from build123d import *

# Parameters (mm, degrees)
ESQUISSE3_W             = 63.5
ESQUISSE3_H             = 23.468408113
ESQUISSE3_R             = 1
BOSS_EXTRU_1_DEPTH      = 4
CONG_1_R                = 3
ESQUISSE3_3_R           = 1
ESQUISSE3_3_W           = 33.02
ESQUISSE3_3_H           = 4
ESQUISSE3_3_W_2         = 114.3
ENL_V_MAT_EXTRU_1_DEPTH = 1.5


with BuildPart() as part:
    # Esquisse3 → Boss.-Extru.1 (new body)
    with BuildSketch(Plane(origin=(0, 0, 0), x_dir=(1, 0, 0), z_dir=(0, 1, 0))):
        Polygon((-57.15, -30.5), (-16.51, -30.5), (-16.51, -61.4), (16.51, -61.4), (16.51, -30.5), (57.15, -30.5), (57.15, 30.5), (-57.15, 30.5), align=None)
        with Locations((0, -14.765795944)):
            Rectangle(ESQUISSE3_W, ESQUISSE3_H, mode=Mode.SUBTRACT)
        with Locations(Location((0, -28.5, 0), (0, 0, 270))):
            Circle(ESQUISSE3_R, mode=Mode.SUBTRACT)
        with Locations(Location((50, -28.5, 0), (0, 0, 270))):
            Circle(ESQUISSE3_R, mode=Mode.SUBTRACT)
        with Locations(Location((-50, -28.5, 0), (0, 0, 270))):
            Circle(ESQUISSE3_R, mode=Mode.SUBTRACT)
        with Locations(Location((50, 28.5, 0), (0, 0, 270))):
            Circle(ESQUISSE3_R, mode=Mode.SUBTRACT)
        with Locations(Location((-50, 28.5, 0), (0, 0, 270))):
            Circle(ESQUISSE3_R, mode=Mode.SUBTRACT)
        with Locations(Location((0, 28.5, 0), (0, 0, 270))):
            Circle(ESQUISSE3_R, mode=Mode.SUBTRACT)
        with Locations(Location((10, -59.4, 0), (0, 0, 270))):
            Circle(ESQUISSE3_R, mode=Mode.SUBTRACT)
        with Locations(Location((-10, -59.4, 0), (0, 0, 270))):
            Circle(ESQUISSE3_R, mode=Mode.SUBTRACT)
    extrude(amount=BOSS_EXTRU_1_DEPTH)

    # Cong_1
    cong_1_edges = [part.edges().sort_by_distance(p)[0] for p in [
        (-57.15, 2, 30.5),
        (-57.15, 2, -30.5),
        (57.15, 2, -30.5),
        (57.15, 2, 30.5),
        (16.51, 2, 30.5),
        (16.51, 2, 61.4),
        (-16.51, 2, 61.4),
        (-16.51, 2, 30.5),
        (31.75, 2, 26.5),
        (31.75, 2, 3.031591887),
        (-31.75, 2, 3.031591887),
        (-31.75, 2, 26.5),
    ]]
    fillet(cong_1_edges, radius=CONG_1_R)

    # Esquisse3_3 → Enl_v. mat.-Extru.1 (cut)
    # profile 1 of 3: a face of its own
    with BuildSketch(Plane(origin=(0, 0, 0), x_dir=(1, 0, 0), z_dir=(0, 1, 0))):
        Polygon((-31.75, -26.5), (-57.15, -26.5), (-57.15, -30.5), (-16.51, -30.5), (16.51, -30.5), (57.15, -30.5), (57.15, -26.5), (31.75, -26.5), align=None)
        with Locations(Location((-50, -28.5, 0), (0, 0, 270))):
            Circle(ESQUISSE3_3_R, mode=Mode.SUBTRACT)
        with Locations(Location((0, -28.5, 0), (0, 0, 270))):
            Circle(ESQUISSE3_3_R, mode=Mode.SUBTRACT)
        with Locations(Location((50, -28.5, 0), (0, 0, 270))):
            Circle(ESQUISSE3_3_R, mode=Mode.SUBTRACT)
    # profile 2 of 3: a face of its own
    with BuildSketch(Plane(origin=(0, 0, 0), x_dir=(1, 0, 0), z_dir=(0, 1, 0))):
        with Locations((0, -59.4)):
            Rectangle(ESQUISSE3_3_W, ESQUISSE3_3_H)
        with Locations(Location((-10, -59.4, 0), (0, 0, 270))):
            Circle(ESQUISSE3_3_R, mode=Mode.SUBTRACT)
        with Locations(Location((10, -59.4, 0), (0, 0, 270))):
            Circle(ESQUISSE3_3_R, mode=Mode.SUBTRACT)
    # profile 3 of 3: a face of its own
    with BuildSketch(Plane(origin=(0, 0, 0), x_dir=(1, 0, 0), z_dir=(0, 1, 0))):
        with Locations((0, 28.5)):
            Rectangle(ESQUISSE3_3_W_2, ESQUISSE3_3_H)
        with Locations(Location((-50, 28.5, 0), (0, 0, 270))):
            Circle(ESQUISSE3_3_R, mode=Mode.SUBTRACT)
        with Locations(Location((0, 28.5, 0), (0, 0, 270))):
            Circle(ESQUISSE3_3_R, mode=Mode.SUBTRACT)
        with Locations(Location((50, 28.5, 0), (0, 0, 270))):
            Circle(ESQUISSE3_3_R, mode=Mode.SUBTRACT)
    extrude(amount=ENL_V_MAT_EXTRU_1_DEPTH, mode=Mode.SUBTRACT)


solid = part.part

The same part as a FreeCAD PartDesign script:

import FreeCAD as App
import Part
import Sketcher

V = App.Vector
Q = App.Units.Quantity


def edges_at(feature, points):
    """Names of the edges that pass closest to the given points."""
    edges = feature.Shape.Edges
    near = lambda p: min(range(len(edges)), key=lambda i: edges[i].distToShape(Part.Vertex(*p))[0])
    return sorted({f"Edge{near(p) + 1}" for p in points})

doc = App.newDocument("Part")
params = doc.addObject("Spreadsheet::Sheet", "Params")
for row, (alias, value) in enumerate([
    ("sketch1_diameter", "2 mm"),
    ("sketch1_height", "61 mm"),
    ("sketch1_width", "114.3 mm"),
    ("sketch1_width2", "63.5 mm"),
    ("sketch1_height2", "30.9 mm"),
    ("pad1_length", "4 mm"),
    ("fillet_radius", "3 mm"),
    ("sketch2_diameter", "2 mm"),
    ("sketch2_height", "4 mm"),
    ("sketch2_width", "114.3 mm"),
    ("sketch2_width2", "33.02 mm"),
    ("pocket1_length", "1.5 mm"),
], start=1):
    params.set(f"A{row}", alias)
    params.set(f"B{row}", "=" + value)
    params.setAlias(f"B{row}", alias)

body = doc.addObject("PartDesign::Body", "Body")

sketch1 = body.newObject("Sketcher::SketchObject", "Sketch")
sketch1.AttachmentSupport = (doc.getObject("XZ_Plane"), [""])
sketch1.MapMode = "FlatFace"
sketch1.addGeometry([
    Part.LineSegment(V(-57.1, 30.5, 0), V(-16.5, 30.5, 0)),
    Part.LineSegment(V(-16.5, 30.5, 0), V(-16.5, 61.4, 0)),
    Part.LineSegment(V(-16.5, 61.4, 0), V(16.5, 61.4, 0)),
    Part.LineSegment(V(16.5, 61.4, 0), V(16.5, 30.5, 0)),
    Part.LineSegment(V(16.5, 30.5, 0), V(57.1, 30.5, 0)),
    Part.LineSegment(V(57.1, 30.5, 0), V(57.1, -30.5, 0)),
    Part.LineSegment(V(57.1, -30.5, 0), V(-57.1, -30.5, 0)),
    Part.LineSegment(V(-57.1, -30.5, 0), V(-57.1, 30.5, 0)),
    Part.Circle(V(-10, 59.4, 0), V(0, 0, 1), 1),
    Part.Circle(V(-50, 28.5, 0), V(0, 0, 1), 1),
    Part.Circle(V(10, 59.4, 0), V(0, 0, 1), 1),
    Part.Circle(V(0, 28.5, 0), V(0, 0, 1), 1),
    Part.Circle(V(50, 28.5, 0), V(0, 0, 1), 1),
    Part.Circle(V(-50, -28.5, 0), V(0, 0, 1), 1),
    Part.LineSegment(V(31.8, 26.5, 0), V(-31.8, 26.5, 0)),
    Part.LineSegment(V(-31.8, 26.5, 0), V(-31.8, 3, 0)),
    Part.LineSegment(V(-31.8, 3, 0), V(31.8, 3, 0)),
    Part.LineSegment(V(31.8, 3, 0), V(31.8, 26.5, 0)),
    Part.Circle(V(0, -28.5, 0), V(0, 0, 1), 1),
    Part.Circle(V(50, -28.5, 0), V(0, 0, 1), 1),
], False)
sketch1.addConstraint([
    Sketcher.Constraint("Coincident", 0, 2, 1, 1),
    Sketcher.Constraint("Coincident", 1, 2, 2, 1),
    Sketcher.Constraint("Coincident", 2, 2, 3, 1),
    Sketcher.Constraint("Coincident", 3, 2, 4, 1),
    Sketcher.Constraint("Coincident", 4, 2, 5, 1),
    Sketcher.Constraint("Coincident", 5, 2, 6, 1),
    Sketcher.Constraint("Coincident", 6, 2, 7, 1),
    Sketcher.Constraint("Coincident", 7, 2, 0, 1),
    Sketcher.Constraint("Coincident", 14, 2, 15, 1),
    Sketcher.Constraint("Coincident", 15, 2, 16, 1),
    Sketcher.Constraint("Coincident", 16, 2, 17, 1),
    Sketcher.Constraint("Coincident", 17, 2, 14, 1),
    Sketcher.Constraint("Horizontal", 0),
    Sketcher.Constraint("Vertical", 1),
    Sketcher.Constraint("Horizontal", 2),
    Sketcher.Constraint("Vertical", 3),
    Sketcher.Constraint("Horizontal", 4),
    Sketcher.Constraint("Vertical", 5),
    Sketcher.Constraint("Horizontal", 6),
    Sketcher.Constraint("Vertical", 7),
    Sketcher.Constraint("Horizontal", 14),
    Sketcher.Constraint("Vertical", 15),
    Sketcher.Constraint("Horizontal", 16),
    Sketcher.Constraint("Vertical", 17),
    Sketcher.Constraint("Equal", 8, 9),
    Sketcher.Constraint("Equal", 9, 10),
    Sketcher.Constraint("Equal", 10, 11),
    Sketcher.Constraint("Equal", 11, 12),
    Sketcher.Constraint("Equal", 12, 13),
    Sketcher.Constraint("Equal", 13, 18),
    Sketcher.Constraint("Equal", 18, 19),
    Sketcher.Constraint("Symmetric", 12, 3, 13, 3, -1, 1),
    Sketcher.Constraint("Symmetric", 11, 3, 18, 3, -1, 1),
    Sketcher.Constraint("Symmetric", 9, 3, 19, 3, -1, 1),
    Sketcher.Constraint("Symmetric", 4, 2, 6, 2, -1, 1),
    Sketcher.Constraint("Symmetric", 8, 3, 10, 3, -2),
    Sketcher.Constraint("Symmetric", 9, 3, 12, 3, -2),
    Sketcher.Constraint("Symmetric", 0, 2, 3, 2, -2),
    Sketcher.Constraint("PointOnObject", 11, 3, -2),
    Sketcher.Constraint("Horizontal", 9, 3, 11, 3),
    Sketcher.Constraint("Diameter", 8, Q("2 mm")),
    Sketcher.Constraint("DistanceY", 5, 2, 5, 1, Q("61 mm")),
    Sketcher.Constraint("DistanceX", 6, 2, 6, 1, Q("114.3 mm")),
    Sketcher.Constraint("DistanceX", 14, 2, 14, 1, Q("63.5 mm")),
    Sketcher.Constraint("DistanceY", 1, 1, 1, 2, Q("30.9 mm")),
    Sketcher.Constraint("DistanceX", 8, 3, -1, 1, Q("10 mm")),
    Sketcher.Constraint("DistanceX", 9, 3, -1, 1, Q("50 mm")),
    Sketcher.Constraint("DistanceY", 13, 3, 9, 3, Q("57 mm")),
    Sketcher.Constraint("DistanceY", 8, 3, 1, 2, Q("2 mm")),
    Sketcher.Constraint("DistanceY", 14, 2, 0, 2, Q("4 mm")),
    Sketcher.Constraint("DistanceX", 0, 1, 0, 2, Q("40.64 mm")),
    Sketcher.Constraint("DistanceX", 7, 2, 14, 2, Q("25.4 mm")),
    Sketcher.Constraint("DistanceY", 15, 2, 15, 1, Q("23.468408 mm")),
])
sketch1.setExpression("Constraints[40]", "Params.sketch1_diameter")
sketch1.setExpression("Constraints[41]", "Params.sketch1_height")
sketch1.setExpression("Constraints[42]", "Params.sketch1_width")
sketch1.setExpression("Constraints[43]", "Params.sketch1_width2")
sketch1.setExpression("Constraints[44]", "Params.sketch1_height2")
pad1 = body.newObject("PartDesign::Pad", "Pad")
pad1.Profile = sketch1
pad1.setExpression("Length", "Params.pad1_length")
pad1.Reversed = True
doc.recompute()

fillet = body.newObject("PartDesign::Fillet", "Fillet")
fillet.Base = (pad1, edges_at(pad1, [
    (-57.15, 2, 30.5),
    (-57.15, 2, -30.5),
    (57.15, 2, -30.5),
    (57.15, 2, 30.5),
    (16.51, 2, 30.5),
    (16.51, 2, 61.4),
    (-16.51, 2, 61.4),
    (-16.51, 2, 30.5),
    (31.75, 2, 26.5),
    (31.75, 2, 3.032),
    (-31.75, 2, 3.032),
    (-31.75, 2, 26.5),
]))
fillet.setExpression("Radius", "Params.fillet_radius")

sketch2 = body.newObject("Sketcher::SketchObject", "Sketch001")
sketch2.AttachmentSupport = (doc.getObject("XZ_Plane"), [""])
sketch2.MapMode = "FlatFace"
sketch2.addGeometry([
    Part.LineSegment(V(-57.1, 26.5, 0), V(-57.1, 30.5, 0)),
    Part.LineSegment(V(-57.1, 30.5, 0), V(57.1, 30.5, 0)),
    Part.LineSegment(V(57.1, 30.5, 0), V(57.1, 26.5, 0)),
    Part.LineSegment(V(57.1, 26.5, 0), V(-57.1, 26.5, 0)),
    Part.Circle(V(-50, 28.5, 0), V(0, 0, 1), 1),
    Part.Circle(V(0, 28.5, 0), V(0, 0, 1), 1),
    Part.Circle(V(50, 28.5, 0), V(0, 0, 1), 1),
    Part.LineSegment(V(-16.5, 57.4, 0), V(-16.5, 61.4, 0)),
    Part.LineSegment(V(-16.5, 61.4, 0), V(16.5, 61.4, 0)),
    Part.LineSegment(V(16.5, 61.4, 0), V(16.5, 57.4, 0)),
    Part.LineSegment(V(16.5, 57.4, 0), V(-16.5, 57.4, 0)),
    Part.Circle(V(-10, 59.4, 0), V(0, 0, 1), 1),
    Part.Circle(V(10, 59.4, 0), V(0, 0, 1), 1),
    Part.LineSegment(V(-57.1, -30.5, 0), V(-57.1, -26.5, 0)),
    Part.LineSegment(V(-57.1, -26.5, 0), V(57.1, -26.5, 0)),
    Part.LineSegment(V(57.1, -26.5, 0), V(57.1, -30.5, 0)),
    Part.LineSegment(V(57.1, -30.5, 0), V(-57.1, -30.5, 0)),
    Part.Circle(V(-50, -28.5, 0), V(0, 0, 1), 1),
    Part.Circle(V(0, -28.5, 0), V(0, 0, 1), 1),
    Part.Circle(V(50, -28.5, 0), V(0, 0, 1), 1),
], False)
sketch2.addConstraint([
    Sketcher.Constraint("Coincident", 0, 2, 1, 1),
    Sketcher.Constraint("Coincident", 1, 2, 2, 1),
    Sketcher.Constraint("Coincident", 2, 2, 3, 1),
    Sketcher.Constraint("Coincident", 3, 2, 0, 1),
    Sketcher.Constraint("Coincident", 7, 2, 8, 1),
    Sketcher.Constraint("Coincident", 8, 2, 9, 1),
    Sketcher.Constraint("Coincident", 9, 2, 10, 1),
    Sketcher.Constraint("Coincident", 10, 2, 7, 1),
    Sketcher.Constraint("Coincident", 13, 2, 14, 1),
    Sketcher.Constraint("Coincident", 14, 2, 15, 1),
    Sketcher.Constraint("Coincident", 15, 2, 16, 1),
    Sketcher.Constraint("Coincident", 16, 2, 13, 1),
    Sketcher.Constraint("Vertical", 0),
    Sketcher.Constraint("Horizontal", 1),
    Sketcher.Constraint("Vertical", 2),
    Sketcher.Constraint("Horizontal", 3),
    Sketcher.Constraint("Vertical", 7),
    Sketcher.Constraint("Horizontal", 8),
    Sketcher.Constraint("Vertical", 9),
    Sketcher.Constraint("Horizontal", 10),
    Sketcher.Constraint("Vertical", 13),
    Sketcher.Constraint("Horizontal", 14),
    Sketcher.Constraint("Vertical", 15),
    Sketcher.Constraint("Horizontal", 16),
    Sketcher.Constraint("Equal", 4, 5),
    Sketcher.Constraint("Equal", 5, 6),
    Sketcher.Constraint("Equal", 6, 11),
    Sketcher.Constraint("Equal", 11, 12),
    Sketcher.Constraint("Equal", 12, 17),
    Sketcher.Constraint("Equal", 17, 18),
    Sketcher.Constraint("Equal", 18, 19),
    Sketcher.Constraint("Symmetric", 6, 3, 17, 3, -1, 1),
    Sketcher.Constraint("Symmetric", 5, 3, 18, 3, -1, 1),
    Sketcher.Constraint("Symmetric", 4, 3, 19, 3, -1, 1),
    Sketcher.Constraint("Symmetric", 2, 2, 13, 2, -1, 1),
    Sketcher.Constraint("Symmetric", 0, 2, 15, 2, -1, 1),
    Sketcher.Constraint("Symmetric", 4, 3, 6, 3, -2),
    Sketcher.Constraint("Symmetric", 11, 3, 12, 3, -2),
    Sketcher.Constraint("PointOnObject", 5, 3, -2),
    Sketcher.Constraint("Horizontal", 4, 3, 5, 3),
    Sketcher.Constraint("Vertical", 3, 2, 13, 2),
    Sketcher.Constraint("Equal", 2, 7),
    Sketcher.Constraint("Diameter", 4, Q("2 mm")),
    Sketcher.Constraint("DistanceY", 0, 1, 0, 2, Q("4 mm")),
    Sketcher.Constraint("DistanceX", 1, 1, 1, 2, Q("114.3 mm")),
    Sketcher.Constraint("DistanceX", 4, 3, -1, 1, Q("50 mm")),
    Sketcher.Constraint("DistanceX", 11, 3, -1, 1, Q("10 mm")),
    Sketcher.Constraint("DistanceY", 17, 3, 4, 3, Q("57 mm")),
    Sketcher.Constraint("DistanceY", 4, 3, 0, 2, Q("2 mm")),
    Sketcher.Constraint("DistanceY", 11, 3, 7, 2, Q("2 mm")),
    Sketcher.Constraint("DistanceX", 8, 1, 8, 2, Q("33.02 mm")),
    Sketcher.Constraint("DistanceY", -1, 1, 11, 3, Q("59.4 mm")),
    Sketcher.Constraint("DistanceX", 7, 2, -1, 1, Q("16.51 mm")),
])
sketch2.setExpression("Constraints[42]", "Params.sketch2_diameter")
sketch2.setExpression("Constraints[43]", "Params.sketch2_height")
sketch2.setExpression("Constraints[44]", "Params.sketch2_width")
sketch2.setExpression("Constraints[50]", "Params.sketch2_width2")
pocket1 = body.newObject("PartDesign::Pocket", "Pocket")
pocket1.Profile = sketch2
pocket1.setExpression("Length", "Params.pocket1_length")

doc.recompute()
